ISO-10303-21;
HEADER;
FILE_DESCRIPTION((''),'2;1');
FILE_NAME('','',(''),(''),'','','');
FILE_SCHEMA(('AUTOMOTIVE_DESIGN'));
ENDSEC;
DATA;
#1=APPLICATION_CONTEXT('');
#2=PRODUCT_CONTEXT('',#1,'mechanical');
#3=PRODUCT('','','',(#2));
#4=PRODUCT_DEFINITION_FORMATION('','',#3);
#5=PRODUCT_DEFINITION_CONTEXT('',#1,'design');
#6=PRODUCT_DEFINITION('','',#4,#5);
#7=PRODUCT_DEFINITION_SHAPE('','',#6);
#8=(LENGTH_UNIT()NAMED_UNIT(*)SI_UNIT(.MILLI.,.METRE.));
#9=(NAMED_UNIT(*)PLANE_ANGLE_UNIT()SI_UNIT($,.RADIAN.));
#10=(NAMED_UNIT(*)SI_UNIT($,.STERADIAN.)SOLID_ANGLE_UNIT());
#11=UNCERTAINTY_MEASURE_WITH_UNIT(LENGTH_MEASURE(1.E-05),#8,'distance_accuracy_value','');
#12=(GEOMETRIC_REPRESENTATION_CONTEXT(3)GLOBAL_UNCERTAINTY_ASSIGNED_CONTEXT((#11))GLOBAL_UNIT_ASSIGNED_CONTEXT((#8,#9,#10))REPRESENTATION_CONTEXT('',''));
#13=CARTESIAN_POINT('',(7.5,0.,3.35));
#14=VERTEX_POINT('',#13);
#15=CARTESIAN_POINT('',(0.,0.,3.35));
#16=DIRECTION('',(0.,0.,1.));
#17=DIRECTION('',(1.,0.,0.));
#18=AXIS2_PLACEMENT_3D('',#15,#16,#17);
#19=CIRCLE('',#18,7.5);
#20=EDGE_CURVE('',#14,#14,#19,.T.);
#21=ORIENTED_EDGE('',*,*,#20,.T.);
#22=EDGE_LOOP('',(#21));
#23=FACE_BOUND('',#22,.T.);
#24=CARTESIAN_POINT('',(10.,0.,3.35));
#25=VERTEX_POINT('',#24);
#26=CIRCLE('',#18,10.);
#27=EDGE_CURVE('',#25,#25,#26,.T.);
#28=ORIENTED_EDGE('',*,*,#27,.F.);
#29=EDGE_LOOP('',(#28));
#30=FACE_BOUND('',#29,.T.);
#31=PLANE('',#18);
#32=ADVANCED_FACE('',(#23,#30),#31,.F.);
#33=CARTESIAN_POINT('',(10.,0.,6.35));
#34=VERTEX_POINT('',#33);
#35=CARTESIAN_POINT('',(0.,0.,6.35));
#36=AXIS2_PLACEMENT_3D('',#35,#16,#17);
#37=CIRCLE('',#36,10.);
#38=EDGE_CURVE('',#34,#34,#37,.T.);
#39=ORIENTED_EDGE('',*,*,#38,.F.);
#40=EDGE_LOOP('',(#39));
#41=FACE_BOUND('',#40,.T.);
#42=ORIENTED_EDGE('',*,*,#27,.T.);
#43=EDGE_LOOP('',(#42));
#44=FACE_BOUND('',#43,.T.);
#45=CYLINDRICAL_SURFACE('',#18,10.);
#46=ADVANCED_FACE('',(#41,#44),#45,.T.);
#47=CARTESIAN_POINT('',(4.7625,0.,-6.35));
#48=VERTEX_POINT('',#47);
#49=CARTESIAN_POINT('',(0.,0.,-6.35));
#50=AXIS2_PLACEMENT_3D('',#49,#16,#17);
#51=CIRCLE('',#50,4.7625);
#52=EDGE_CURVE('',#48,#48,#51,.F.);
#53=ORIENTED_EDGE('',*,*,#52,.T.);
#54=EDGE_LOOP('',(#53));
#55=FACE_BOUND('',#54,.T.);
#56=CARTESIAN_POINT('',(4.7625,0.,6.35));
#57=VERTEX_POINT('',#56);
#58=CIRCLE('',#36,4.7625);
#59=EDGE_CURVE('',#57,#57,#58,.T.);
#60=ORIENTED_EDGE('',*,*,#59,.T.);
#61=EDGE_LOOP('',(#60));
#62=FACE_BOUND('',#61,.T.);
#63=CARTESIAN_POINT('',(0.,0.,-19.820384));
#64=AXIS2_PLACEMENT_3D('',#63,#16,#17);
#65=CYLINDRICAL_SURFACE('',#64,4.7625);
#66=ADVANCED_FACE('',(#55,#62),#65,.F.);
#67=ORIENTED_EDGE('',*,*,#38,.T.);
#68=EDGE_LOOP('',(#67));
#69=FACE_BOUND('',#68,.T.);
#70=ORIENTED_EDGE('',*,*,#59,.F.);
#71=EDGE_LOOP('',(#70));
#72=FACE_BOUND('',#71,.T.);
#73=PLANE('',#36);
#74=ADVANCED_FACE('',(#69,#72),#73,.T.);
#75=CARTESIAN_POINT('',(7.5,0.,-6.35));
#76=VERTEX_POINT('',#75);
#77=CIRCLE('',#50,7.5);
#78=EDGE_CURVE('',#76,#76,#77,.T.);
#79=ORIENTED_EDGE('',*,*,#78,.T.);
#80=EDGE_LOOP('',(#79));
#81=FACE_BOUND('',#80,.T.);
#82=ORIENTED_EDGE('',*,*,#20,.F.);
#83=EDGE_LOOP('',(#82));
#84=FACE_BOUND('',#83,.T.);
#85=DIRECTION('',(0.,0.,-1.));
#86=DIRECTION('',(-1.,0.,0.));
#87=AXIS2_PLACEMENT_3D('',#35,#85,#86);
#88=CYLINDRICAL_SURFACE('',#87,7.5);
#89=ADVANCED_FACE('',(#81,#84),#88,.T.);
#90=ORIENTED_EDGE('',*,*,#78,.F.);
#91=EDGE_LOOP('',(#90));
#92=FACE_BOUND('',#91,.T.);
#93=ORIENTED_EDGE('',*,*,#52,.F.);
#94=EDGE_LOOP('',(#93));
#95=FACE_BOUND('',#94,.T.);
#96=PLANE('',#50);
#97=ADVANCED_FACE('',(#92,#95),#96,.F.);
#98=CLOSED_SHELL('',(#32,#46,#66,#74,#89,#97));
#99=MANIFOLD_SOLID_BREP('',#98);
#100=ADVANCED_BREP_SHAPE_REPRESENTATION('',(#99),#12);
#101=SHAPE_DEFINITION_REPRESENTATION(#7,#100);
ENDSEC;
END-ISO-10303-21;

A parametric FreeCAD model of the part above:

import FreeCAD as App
import Part
import Sketcher

V = App.Vector

doc = App.newDocument("Part")
params = doc.addObject("Spreadsheet::Sheet", "Params")
for row, (alias, value) in enumerate([
    ("sketch1_diameter", "15 mm"),
    ("pad1_length", "12.7 mm"),
    ("pocket1_length", "12.7 mm"),
    ("sketch3_diameter", "20 mm"),
    ("pad2_length", "3 mm"),
], start=1):
    params.set(f"A{row}", alias)
    params.set(f"B{row}", "=" + value)
    params.setAlias(f"B{row}", alias)

body = doc.addObject("PartDesign::Body", "Body")

# Sketch on XY plane
sketch1 = body.newObject("Sketcher::SketchObject", "Sketch")
sketch1.AttachmentSupport = (doc.getObject("XY_Plane"), [""])
sketch1.MapMode = "FlatFace"
sketch1.addGeometry(Part.Circle(V(0, 0, 0), V(0, 0, 1), 8), False)
sketch1.addConstraint([
    Sketcher.Constraint("Coincident", 0, 3, -1, 1),
    Sketcher.Constraint("Diameter", 0, 15.0),
])
sketch1.setExpression("Constraints[1]", "Params.sketch1_diameter")
pad1 = body.newObject("PartDesign::Pad", "Pad")
pad1.Profile = sketch1
pad1.setExpression("Length", "Params.pad1_length")
pad1.Midplane = True

# Sketch on XY plane
sketch2 = body.newObject("Sketcher::SketchObject", "Sketch001")
sketch2.AttachmentSupport = (doc.getObject("XY_Plane"), [""])
sketch2.MapMode = "FlatFace"
sketch2.AttachmentOffset = App.Placement(V(0, 0, 6.35), App.Rotation())
sketch2.addGeometry(Part.Circle(V(0, 0, 0), V(0, 0, 1), 4.8), False)
sketch2.addConstraint([
    Sketcher.Constraint("Coincident", 0, 3, -1, 1),
    Sketcher.Constraint("Diameter", 0, 9.525),
])
pocket1 = body.newObject("PartDesign::Pocket", "Pocket")
pocket1.Profile = sketch2
pocket1.setExpression("Length", "Params.pocket1_length")

# Sketch on XY plane
sketch3 = body.newObject("Sketcher::SketchObject", "Sketch002")
sketch3.AttachmentSupport = (doc.getObject("XY_Plane"), [""])
sketch3.MapMode = "FlatFace"
sketch3.AttachmentOffset = App.Placement(V(0, 0, 6.35), App.Rotation())
sketch3.addGeometry([
    Part.Circle(V(0, 0, 0), V(0, 0, 1), 10),
    Part.Circle(V(0, 0, 0), V(0, 0, 1), 4.8),
], False)
sketch3.addConstraint([
    Sketcher.Constraint("Coincident", 0, 3, -1, 1),
    Sketcher.Constraint("Coincident", 1, 3, -1, 1),
    Sketcher.Constraint("Diameter", 0, 20.0),
    Sketcher.Constraint("Diameter", 1, 9.525),
])
sketch3.setExpression("Constraints[2]", "Params.sketch3_diameter")
pad2 = body.newObject("PartDesign::Pad", "Pad001")
pad2.Profile = sketch3
pad2.setExpression("Length", "Params.pad2_length")
pad2.Reversed = True

doc.recompute()
